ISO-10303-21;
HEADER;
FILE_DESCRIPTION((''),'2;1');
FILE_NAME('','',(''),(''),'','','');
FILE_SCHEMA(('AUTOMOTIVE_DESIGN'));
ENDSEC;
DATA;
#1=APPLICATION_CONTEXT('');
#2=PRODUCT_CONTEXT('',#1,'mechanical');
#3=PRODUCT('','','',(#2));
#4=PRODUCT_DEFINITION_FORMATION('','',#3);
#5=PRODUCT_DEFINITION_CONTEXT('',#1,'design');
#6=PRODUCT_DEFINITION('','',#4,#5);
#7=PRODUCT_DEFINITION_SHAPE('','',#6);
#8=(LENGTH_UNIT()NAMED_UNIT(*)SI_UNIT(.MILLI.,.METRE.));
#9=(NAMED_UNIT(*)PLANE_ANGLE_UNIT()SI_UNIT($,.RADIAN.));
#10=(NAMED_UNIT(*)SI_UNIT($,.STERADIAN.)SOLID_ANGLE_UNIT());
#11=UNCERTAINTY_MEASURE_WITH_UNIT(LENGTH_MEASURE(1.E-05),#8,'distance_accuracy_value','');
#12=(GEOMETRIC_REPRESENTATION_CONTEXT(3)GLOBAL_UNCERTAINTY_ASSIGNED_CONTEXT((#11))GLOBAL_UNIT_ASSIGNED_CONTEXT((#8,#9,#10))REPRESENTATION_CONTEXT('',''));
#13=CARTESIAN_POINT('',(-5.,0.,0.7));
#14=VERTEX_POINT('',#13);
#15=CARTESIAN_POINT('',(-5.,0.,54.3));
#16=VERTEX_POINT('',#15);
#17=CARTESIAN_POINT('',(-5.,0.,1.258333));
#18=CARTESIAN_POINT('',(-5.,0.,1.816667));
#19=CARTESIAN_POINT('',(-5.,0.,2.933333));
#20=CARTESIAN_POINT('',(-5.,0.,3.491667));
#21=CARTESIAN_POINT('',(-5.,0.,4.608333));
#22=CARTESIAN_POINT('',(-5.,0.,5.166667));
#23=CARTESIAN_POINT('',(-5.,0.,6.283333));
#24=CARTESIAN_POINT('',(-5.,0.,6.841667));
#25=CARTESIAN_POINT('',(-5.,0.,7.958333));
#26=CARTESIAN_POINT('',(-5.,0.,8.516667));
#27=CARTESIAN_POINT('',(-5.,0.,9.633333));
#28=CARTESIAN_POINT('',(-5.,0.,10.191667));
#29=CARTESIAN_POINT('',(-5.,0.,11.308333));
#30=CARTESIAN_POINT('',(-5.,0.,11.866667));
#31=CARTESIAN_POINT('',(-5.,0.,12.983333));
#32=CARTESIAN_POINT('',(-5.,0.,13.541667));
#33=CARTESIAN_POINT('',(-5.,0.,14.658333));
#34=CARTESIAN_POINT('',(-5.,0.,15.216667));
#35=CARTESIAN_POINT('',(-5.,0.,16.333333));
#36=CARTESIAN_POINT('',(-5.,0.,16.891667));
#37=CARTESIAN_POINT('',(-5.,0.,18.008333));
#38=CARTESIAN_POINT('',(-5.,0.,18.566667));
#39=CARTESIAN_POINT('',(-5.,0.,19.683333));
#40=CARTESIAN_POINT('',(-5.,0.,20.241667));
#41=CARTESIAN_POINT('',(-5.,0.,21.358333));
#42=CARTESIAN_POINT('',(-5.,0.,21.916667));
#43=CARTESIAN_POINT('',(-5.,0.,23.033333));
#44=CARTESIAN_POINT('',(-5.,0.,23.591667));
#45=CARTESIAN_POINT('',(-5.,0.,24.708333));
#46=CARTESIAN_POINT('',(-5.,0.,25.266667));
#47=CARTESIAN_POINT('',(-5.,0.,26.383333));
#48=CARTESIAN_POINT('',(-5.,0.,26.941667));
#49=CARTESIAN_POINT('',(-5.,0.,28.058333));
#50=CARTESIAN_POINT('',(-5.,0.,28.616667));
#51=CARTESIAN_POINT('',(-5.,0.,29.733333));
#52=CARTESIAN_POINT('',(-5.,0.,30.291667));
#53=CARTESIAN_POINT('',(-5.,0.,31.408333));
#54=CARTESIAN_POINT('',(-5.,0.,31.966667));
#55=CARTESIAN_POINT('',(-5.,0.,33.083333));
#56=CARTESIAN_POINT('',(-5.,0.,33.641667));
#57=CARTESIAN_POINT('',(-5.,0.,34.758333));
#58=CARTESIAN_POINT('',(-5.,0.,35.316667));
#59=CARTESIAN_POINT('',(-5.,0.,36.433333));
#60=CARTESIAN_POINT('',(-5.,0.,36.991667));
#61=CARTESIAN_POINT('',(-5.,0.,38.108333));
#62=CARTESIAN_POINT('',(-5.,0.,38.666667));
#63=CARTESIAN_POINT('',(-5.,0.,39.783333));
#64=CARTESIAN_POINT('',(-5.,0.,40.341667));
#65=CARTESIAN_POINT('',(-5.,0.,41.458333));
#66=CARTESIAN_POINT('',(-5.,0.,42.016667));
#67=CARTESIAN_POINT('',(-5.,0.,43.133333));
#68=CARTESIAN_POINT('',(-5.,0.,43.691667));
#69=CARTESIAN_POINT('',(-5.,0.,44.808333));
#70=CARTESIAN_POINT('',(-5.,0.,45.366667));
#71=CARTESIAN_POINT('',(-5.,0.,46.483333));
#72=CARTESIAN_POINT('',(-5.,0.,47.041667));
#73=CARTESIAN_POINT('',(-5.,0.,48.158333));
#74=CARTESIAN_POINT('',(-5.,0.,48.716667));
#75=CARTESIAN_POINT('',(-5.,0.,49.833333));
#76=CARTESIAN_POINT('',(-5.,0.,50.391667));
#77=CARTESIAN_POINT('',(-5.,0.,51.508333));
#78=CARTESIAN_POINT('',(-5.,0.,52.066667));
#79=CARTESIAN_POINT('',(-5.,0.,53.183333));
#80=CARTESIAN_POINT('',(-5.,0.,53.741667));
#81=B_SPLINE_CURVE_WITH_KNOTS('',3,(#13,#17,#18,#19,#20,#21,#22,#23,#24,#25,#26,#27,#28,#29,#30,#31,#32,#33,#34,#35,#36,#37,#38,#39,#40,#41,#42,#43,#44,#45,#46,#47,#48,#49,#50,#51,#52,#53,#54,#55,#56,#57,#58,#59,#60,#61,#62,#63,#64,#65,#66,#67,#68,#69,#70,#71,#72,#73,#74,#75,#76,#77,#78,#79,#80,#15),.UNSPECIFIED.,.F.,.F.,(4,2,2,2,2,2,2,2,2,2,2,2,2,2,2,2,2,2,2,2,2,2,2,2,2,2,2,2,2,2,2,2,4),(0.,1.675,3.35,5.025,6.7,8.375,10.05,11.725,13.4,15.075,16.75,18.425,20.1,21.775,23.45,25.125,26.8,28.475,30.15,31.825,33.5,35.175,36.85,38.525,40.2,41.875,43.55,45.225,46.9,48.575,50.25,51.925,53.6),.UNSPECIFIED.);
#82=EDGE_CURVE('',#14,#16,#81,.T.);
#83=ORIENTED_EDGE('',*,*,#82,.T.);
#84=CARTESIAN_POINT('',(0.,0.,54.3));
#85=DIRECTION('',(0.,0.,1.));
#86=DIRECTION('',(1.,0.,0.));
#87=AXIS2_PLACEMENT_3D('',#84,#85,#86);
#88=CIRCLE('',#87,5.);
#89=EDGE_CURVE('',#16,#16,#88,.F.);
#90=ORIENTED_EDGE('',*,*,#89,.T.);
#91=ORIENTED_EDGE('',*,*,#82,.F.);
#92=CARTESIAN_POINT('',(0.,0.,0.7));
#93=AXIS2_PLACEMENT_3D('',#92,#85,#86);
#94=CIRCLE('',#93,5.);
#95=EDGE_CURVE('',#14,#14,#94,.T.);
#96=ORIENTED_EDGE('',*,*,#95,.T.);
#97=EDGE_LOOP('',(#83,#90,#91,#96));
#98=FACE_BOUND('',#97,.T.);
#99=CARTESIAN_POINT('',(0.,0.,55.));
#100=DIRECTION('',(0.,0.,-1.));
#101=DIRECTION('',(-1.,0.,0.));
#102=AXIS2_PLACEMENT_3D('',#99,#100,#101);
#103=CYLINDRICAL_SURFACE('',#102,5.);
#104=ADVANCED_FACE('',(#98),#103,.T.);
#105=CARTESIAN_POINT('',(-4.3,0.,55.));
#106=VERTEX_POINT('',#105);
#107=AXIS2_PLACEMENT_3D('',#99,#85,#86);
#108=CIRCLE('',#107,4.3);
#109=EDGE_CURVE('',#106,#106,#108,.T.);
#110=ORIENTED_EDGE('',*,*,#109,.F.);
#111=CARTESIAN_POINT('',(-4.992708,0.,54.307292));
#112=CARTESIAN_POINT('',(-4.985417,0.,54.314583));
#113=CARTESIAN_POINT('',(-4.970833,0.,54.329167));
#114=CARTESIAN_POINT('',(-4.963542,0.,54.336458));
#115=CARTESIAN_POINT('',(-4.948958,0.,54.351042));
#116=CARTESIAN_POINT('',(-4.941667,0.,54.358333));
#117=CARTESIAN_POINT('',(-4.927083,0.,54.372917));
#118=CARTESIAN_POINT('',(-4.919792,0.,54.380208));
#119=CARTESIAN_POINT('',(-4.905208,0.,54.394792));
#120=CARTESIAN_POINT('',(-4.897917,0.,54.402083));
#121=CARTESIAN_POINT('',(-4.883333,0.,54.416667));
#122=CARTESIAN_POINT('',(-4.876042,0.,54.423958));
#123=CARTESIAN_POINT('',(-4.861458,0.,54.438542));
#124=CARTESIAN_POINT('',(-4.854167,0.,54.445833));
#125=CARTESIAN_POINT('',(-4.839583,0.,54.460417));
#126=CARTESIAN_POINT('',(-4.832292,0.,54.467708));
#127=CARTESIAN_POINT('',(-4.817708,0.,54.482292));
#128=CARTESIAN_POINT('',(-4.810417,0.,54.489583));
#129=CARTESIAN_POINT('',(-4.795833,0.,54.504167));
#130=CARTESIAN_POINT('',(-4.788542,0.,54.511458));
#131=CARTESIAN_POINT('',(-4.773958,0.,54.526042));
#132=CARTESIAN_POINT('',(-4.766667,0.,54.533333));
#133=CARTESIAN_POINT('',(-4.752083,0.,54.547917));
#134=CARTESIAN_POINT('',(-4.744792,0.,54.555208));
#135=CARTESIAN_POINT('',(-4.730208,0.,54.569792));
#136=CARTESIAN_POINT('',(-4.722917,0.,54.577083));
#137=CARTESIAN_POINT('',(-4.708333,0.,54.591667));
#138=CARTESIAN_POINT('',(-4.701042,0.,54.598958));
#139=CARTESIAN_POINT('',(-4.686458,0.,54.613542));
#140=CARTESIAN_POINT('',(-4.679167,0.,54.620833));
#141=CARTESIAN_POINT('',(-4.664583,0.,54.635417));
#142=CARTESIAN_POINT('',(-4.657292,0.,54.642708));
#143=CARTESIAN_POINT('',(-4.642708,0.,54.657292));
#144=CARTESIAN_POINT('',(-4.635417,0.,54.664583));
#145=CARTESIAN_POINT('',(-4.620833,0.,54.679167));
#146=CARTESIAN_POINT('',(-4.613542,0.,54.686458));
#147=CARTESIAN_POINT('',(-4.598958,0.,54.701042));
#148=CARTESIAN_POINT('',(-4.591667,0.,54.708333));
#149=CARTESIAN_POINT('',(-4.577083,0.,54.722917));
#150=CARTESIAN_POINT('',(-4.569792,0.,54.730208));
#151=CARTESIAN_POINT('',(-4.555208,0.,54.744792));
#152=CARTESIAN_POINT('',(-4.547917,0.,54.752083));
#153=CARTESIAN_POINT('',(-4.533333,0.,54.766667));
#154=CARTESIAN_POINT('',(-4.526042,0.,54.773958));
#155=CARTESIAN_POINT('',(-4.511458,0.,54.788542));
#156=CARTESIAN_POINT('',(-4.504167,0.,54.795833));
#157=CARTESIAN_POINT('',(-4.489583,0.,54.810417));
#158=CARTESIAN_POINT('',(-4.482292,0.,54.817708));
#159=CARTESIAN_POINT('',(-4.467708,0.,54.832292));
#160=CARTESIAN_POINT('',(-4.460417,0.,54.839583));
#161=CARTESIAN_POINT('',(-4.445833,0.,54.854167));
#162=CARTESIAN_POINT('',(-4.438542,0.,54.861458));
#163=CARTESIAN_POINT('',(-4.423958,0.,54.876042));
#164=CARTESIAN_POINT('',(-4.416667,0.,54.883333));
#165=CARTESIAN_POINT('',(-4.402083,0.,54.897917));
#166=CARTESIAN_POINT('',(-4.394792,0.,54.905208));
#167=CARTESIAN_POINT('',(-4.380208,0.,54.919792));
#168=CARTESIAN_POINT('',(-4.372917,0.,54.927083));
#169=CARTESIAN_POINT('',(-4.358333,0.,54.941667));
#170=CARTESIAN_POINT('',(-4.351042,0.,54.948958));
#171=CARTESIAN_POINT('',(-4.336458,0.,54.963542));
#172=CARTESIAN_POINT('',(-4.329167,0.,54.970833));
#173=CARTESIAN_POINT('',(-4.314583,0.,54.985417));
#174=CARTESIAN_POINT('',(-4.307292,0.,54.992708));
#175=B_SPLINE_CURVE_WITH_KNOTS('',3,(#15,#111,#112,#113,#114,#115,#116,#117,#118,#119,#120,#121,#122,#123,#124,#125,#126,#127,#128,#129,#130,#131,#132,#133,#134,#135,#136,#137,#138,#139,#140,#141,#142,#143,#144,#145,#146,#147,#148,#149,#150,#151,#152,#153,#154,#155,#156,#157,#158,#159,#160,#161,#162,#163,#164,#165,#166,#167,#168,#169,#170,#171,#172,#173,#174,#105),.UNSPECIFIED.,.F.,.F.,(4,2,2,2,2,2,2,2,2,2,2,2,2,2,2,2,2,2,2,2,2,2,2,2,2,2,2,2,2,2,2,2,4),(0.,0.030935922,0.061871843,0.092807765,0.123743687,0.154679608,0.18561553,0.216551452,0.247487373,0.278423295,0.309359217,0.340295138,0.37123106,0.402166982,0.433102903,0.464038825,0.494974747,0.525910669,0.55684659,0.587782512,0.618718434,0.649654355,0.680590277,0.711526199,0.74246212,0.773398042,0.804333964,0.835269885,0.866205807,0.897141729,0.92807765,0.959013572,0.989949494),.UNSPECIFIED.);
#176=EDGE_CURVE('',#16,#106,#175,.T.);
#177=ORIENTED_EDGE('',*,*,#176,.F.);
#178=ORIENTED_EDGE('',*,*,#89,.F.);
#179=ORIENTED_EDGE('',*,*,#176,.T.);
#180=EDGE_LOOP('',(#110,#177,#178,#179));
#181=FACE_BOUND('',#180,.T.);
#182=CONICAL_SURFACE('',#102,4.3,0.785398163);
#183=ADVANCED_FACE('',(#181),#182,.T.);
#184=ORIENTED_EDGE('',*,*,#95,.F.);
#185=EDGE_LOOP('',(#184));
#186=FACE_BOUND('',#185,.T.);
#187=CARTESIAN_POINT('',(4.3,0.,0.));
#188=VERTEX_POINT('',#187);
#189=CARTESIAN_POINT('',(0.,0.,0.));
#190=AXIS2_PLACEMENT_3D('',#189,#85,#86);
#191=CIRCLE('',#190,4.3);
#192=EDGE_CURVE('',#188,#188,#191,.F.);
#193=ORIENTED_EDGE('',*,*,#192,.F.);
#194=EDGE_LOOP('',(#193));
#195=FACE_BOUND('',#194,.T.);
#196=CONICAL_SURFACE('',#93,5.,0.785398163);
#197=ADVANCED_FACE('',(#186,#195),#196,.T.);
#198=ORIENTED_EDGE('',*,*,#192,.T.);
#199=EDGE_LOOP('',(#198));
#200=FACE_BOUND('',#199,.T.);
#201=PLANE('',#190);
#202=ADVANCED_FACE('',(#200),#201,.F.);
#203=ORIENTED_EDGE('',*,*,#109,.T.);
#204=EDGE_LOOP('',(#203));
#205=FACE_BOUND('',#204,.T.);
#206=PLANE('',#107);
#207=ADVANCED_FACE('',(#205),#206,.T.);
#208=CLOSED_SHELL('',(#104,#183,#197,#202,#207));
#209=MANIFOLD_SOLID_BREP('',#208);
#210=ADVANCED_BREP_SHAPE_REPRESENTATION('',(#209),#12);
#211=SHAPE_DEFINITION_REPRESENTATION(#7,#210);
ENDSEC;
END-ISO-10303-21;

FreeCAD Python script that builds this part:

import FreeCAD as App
import Part
import Sketcher

V = App.Vector
Q = App.Units.Quantity


def edges_at(feature, points):
    """Names of the edges that pass closest to the given points."""
    edges = feature.Shape.Edges
    near = lambda p: min(range(len(edges)), key=lambda i: edges[i].distToShape(Part.Vertex(*p))[0])
    return sorted({f"Edge{near(p) + 1}" for p in points})

doc = App.newDocument("Part")
params = doc.addObject("Spreadsheet::Sheet", "Params")
for row, (alias, value) in enumerate([
    ("sketch1_diameter", "10 mm"),
    ("pad1_length", "55 mm"),
    ("chamfer_size", "0.7 mm"),
], start=1):
    params.set(f"A{row}", alias)
    params.set(f"B{row}", "=" + value)
    params.setAlias(f"B{row}", alias)

body = doc.addObject("PartDesign::Body", "Body")

# Sketch on XY plane
sketch1 = body.newObject("Sketcher::SketchObject", "Sketch")
sketch1.AttachmentSupport = (doc.getObject("XY_Plane"), [""])
sketch1.MapMode = "FlatFace"
sketch1.addGeometry(Part.Circle(V(0, 0, 0), V(0, 0, 1), 5), False)
sketch1.addConstraint([
    Sketcher.Constraint("Coincident", 0, 3, -1, 1),
    Sketcher.Constraint("Diameter", 0, Q("10 mm")),
])
sketch1.setExpression("Constraints[1]", "Params.sketch1_diameter")
pad1 = body.newObject("PartDesign::Pad", "Pad")
pad1.Profile = sketch1
pad1.setExpression("Length", "Params.pad1_length")
doc.recompute()

chamfer = body.newObject("PartDesign::Chamfer", "Chamfer")
chamfer.Base = (pad1, edges_at(pad1, [(-5, 0, 0), (-5, 0, 55)]))
chamfer.setExpression("Size", "Params.chamfer_size")

doc.recompute()
